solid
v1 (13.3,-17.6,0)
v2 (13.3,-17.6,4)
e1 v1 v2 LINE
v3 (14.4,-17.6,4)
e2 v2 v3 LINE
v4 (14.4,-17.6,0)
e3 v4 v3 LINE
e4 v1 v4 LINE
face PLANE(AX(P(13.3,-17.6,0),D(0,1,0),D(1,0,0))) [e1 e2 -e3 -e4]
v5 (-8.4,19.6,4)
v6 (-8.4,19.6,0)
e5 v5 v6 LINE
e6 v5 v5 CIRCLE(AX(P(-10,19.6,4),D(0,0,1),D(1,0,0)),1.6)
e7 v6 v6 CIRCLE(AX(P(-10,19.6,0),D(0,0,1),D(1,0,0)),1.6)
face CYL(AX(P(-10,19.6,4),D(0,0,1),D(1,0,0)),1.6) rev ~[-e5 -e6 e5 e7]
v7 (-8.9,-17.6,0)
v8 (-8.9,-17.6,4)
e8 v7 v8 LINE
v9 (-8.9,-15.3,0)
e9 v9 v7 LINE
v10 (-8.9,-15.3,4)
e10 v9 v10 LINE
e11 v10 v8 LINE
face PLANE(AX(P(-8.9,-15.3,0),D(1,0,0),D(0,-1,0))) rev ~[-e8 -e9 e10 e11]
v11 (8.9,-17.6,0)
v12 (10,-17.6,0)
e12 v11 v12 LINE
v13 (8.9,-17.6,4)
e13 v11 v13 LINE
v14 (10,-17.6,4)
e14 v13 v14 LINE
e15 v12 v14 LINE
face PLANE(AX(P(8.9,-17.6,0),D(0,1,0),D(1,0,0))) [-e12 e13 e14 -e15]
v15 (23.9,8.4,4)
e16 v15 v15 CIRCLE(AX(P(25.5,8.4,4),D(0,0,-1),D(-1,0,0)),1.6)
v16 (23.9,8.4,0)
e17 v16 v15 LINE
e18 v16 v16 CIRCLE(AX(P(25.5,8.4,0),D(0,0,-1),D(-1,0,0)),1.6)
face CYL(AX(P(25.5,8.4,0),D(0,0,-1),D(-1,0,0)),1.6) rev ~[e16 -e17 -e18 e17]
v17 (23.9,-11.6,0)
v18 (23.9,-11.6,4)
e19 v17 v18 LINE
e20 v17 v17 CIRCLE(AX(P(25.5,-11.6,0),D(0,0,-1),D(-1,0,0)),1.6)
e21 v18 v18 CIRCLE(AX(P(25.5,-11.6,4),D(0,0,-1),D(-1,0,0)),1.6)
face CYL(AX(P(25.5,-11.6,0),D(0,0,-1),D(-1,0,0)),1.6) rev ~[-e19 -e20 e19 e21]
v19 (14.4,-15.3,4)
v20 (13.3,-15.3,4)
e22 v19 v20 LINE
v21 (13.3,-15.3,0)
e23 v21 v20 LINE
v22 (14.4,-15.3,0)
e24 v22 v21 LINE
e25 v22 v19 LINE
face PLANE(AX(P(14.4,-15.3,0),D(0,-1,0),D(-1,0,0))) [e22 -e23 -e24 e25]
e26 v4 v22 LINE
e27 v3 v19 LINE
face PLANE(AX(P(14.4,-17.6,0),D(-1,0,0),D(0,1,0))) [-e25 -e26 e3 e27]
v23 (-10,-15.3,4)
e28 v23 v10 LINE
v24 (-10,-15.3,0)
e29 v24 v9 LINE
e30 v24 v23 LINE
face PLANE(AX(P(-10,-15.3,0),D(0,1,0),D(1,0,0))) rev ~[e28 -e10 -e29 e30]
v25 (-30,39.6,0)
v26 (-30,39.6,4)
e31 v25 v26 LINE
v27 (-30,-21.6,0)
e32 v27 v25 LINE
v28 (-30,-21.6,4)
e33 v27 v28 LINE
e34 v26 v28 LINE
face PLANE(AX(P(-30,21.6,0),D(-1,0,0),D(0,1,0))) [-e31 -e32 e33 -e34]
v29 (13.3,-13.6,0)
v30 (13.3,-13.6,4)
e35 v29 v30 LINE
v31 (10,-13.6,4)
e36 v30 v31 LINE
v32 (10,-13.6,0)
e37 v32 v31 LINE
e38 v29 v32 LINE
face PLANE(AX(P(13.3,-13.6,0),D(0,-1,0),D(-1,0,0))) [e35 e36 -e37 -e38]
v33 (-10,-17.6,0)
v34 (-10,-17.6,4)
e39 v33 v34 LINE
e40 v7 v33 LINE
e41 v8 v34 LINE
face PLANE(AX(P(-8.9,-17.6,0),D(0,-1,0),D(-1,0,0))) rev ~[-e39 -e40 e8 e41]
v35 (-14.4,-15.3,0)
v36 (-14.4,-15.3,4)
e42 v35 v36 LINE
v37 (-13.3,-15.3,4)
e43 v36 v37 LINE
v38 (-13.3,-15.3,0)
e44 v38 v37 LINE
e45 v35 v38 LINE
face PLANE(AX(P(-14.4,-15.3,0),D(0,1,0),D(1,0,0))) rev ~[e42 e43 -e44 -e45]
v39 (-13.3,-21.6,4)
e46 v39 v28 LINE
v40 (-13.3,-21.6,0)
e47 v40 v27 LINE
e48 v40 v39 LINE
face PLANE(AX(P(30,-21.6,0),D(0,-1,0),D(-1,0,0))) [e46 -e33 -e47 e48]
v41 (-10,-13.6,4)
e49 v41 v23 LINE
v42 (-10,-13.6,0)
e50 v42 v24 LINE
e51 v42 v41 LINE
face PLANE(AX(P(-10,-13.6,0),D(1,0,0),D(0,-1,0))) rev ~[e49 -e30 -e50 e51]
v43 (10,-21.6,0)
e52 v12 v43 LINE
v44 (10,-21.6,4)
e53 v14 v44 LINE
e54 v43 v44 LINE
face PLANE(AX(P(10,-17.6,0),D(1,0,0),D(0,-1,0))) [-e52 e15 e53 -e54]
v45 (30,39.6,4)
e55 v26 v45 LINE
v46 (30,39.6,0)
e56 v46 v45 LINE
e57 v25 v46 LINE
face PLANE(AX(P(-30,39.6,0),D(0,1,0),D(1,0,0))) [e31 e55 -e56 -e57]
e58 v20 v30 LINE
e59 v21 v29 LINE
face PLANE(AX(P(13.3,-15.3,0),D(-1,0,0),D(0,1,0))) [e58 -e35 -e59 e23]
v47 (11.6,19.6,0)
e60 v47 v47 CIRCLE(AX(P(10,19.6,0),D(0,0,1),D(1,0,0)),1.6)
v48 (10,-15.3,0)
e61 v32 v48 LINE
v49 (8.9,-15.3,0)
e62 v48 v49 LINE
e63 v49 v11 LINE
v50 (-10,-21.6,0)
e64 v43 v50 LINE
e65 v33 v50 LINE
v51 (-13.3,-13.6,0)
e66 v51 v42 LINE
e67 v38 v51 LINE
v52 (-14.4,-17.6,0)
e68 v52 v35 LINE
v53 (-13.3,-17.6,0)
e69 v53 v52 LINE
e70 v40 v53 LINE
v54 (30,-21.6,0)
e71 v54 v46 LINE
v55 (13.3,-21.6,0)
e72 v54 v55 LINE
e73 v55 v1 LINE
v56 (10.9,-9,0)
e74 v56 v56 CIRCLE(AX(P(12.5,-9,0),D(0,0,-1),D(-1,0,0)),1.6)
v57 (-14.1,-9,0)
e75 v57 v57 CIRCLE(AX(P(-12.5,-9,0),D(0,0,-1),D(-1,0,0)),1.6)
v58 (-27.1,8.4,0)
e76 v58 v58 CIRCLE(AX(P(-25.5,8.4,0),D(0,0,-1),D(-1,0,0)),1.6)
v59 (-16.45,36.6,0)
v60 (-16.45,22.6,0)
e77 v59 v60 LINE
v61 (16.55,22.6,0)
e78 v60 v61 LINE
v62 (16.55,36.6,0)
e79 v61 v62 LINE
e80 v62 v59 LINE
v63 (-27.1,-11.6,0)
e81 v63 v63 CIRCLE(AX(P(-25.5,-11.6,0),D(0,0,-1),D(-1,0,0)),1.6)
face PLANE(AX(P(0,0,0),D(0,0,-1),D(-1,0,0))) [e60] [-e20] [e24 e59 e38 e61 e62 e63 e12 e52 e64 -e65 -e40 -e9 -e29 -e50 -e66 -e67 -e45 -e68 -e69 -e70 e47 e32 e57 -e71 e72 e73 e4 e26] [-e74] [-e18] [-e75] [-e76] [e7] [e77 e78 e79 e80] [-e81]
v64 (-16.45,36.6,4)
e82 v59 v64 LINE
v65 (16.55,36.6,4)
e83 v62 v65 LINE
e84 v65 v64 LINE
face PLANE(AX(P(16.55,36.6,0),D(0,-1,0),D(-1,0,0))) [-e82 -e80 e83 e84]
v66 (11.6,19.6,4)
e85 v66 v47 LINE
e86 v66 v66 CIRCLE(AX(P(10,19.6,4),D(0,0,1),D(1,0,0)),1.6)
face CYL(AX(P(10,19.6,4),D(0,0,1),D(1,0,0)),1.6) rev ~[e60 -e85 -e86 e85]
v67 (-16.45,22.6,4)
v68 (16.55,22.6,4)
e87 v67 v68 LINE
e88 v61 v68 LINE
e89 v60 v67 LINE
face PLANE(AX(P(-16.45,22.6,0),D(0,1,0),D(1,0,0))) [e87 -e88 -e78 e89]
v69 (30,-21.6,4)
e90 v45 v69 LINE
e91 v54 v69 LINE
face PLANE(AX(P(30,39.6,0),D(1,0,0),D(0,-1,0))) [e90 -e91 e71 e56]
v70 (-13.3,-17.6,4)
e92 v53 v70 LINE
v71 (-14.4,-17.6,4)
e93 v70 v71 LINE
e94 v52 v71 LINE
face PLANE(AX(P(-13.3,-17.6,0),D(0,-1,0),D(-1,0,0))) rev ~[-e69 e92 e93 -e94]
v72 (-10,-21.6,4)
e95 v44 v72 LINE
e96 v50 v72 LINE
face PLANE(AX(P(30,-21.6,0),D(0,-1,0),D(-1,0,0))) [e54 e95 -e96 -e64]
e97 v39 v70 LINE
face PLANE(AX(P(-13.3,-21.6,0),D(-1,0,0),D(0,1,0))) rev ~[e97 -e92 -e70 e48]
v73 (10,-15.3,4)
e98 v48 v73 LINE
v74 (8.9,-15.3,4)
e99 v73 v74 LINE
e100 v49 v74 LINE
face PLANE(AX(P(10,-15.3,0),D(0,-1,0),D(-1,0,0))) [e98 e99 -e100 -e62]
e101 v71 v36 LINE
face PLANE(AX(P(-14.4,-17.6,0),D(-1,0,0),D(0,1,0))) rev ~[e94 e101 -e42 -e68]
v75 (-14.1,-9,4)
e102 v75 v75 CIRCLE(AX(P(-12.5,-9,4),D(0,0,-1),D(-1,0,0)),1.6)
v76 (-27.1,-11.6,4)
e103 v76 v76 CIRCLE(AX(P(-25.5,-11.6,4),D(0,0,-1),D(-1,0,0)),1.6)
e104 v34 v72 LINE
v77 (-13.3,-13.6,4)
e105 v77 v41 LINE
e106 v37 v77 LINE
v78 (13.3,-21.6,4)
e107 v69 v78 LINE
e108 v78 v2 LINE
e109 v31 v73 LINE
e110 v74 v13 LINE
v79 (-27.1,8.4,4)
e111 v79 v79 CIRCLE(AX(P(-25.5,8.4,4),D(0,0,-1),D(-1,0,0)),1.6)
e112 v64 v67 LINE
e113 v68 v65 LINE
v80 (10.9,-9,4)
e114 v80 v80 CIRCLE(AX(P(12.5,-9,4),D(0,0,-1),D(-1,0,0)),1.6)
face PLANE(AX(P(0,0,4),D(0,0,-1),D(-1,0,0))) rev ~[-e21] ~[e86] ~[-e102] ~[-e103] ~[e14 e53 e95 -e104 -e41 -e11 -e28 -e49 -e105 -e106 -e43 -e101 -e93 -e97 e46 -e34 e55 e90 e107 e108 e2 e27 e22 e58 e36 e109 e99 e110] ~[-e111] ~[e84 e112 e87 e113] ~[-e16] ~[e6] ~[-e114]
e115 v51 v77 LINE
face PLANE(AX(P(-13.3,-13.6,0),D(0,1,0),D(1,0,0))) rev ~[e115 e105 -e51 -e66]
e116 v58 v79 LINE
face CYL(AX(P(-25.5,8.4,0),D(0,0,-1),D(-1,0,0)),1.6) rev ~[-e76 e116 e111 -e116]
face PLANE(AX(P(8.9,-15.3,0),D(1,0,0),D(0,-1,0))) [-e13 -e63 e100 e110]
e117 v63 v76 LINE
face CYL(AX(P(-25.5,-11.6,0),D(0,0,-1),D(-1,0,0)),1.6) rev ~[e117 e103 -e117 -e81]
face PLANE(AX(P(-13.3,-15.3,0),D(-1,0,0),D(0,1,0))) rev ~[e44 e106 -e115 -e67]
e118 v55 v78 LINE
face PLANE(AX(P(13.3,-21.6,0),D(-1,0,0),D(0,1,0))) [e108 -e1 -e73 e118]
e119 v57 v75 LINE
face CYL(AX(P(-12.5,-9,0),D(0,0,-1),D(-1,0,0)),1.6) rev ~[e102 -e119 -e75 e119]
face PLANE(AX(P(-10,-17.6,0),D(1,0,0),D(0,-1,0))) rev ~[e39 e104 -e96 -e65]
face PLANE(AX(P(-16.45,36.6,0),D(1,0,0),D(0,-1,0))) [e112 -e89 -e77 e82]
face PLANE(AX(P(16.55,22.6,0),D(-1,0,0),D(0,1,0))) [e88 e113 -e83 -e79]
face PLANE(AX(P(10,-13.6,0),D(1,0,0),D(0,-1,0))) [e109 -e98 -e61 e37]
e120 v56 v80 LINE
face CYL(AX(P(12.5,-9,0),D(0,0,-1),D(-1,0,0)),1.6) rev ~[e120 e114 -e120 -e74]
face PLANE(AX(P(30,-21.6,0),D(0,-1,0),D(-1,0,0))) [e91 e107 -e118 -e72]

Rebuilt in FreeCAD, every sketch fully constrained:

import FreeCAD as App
import Part
import Sketcher
from FreeCAD import Vector
Q = App.Units.Quantity


def add_polygon(sketch, points):
    """Adds a closed chain of lines whose ends are joined by coincident constraints."""
    first, n = sketch.GeometryCount, len(points)
    for a, b in zip(points, points[1:] + points[:1]):
        sketch.addGeometry(Part.LineSegment(App.Vector(*a, 0), App.Vector(*b, 0)), False)
    for i in range(n):
        sketch.addConstraint(Sketcher.Constraint("Coincident", first + i, 2, first + (i + 1) % n, 1))

doc = App.newDocument("Part")
body = doc.addObject("PartDesign::Body", "Body")

# Sketch on XY plane
sketch1 = body.newObject("Sketcher::SketchObject", "Sketch")
sketch1.AttachmentSupport = (doc.getObject("XY_Plane"), [""])
sketch1.MapMode = "FlatFace"
add_polygon(sketch1, [(30, 22), (-30, 22), (-30, -22), (30, -22)])  # lines 0-3
sketch1.addConstraint(Sketcher.Constraint("Horizontal", 0))
sketch1.addConstraint(Sketcher.Constraint("Vertical", 1))
sketch1.addConstraint(Sketcher.Constraint("Horizontal", 2))
sketch1.addConstraint(Sketcher.Constraint("Vertical", 3))
sketch1.addConstraint(Sketcher.Constraint("Symmetric", 0, 2, 2, 2, -1, 1))
sketch1.addConstraint(Sketcher.Constraint("DistanceX", 0, 2, 0, 1, Q("60 mm")))
sketch1.addConstraint(Sketcher.Constraint("DistanceY", 1, 2, 1, 1, Q("43.2 mm")))
pad1 = body.newObject("PartDesign::Pad", "Pad")
pad1.Profile = sketch1
pad1.Length = 4

# Sketch on XY plane
sketch2 = body.newObject("Sketcher::SketchObject", "Sketch001")
sketch2.AttachmentSupport = (doc.getObject("XY_Plane"), [""])
sketch2.MapMode = "FlatFace"
sketch2.addGeometry(Part.Circle(Vector(12.5, -9, 0), Vector(0, 0, 1), 1.6), False)
sketch2.addGeometry(Part.Circle(Vector(-12.5, -9, 0), Vector(0, 0, 1), 1.6), False)
sketch2.addConstraint(Sketcher.Constraint("Equal", 0, 1))
sketch2.addConstraint(Sketcher.Constraint("Symmetric", 0, 3, 1, 3, -2))
sketch2.addConstraint(Sketcher.Constraint("Diameter", 0, Q("3.2 mm")))
sketch2.addConstraint(Sketcher.Constraint("DistanceY", 0, 3, -1, 1, Q("9 mm")))
sketch2.addConstraint(Sketcher.Constraint("DistanceX", 1, 3, 0, 3, Q("25 mm")))
pocket1 = body.newObject("PartDesign::Pocket", "Pocket")
pocket1.Profile = sketch2
pocket1.Length = 4
pocket1.Reversed = True

# Sketch on XY plane
sketch3 = body.newObject("Sketcher::SketchObject", "Sketch002")
sketch3.AttachmentSupport = (doc.getObject("XY_Plane"), [""])
sketch3.MapMode = "FlatFace"
sketch3.addGeometry(Part.Circle(Vector(25.5, 8.4, 0), Vector(0, 0, 1), 1.6), False)
sketch3.addGeometry(Part.Circle(Vector(-25.5, 8.4, 0), Vector(0, 0, 1), 1.6), False)
sketch3.addGeometry(Part.Circle(Vector(25.5, -11.6, 0), Vector(0, 0, 1), 1.6), False)
sketch3.addGeometry(Part.Circle(Vector(-25.5, -11.6, 0), Vector(0, 0, 1), 1.6), False)
sketch3.addConstraint(Sketcher.Constraint("Equal", 0, 1))
sketch3.addConstraint(Sketcher.Constraint("Equal", 1, 2))
sketch3.addConstraint(Sketcher.Constraint("Equal", 2, 3))
sketch3.addConstraint(Sketcher.Constraint("Symmetric", 0, 3, 1, 3, -2))
sketch3.addConstraint(Sketcher.Constraint("Symmetric", 2, 3, 3, 3, -2))
sketch3.addConstraint(Sketcher.Constraint("Vertical", 0, 3, 2, 3))
sketch3.addConstraint(Sketcher.Constraint("Diameter", 0, Q("3.2 mm")))
sketch3.addConstraint(Sketcher.Constraint("DistanceX", 1, 3, 0, 3, Q("51 mm")))
sketch3.addConstraint(Sketcher.Constraint("DistanceY", 2, 3, 0, 3, Q("20 mm")))
sketch3.addConstraint(Sketcher.Constraint("DistanceY", -1, 1, 0, 3, Q("8.4 mm")))
pocket2 = body.newObject("PartDesign::Pocket", "Pocket001")
pocket2.Profile = sketch3
pocket2.Length = 10
pocket2.Reversed = True

# Sketch on XY plane
sketch4 = body.newObject("Sketcher::SketchObject", "Sketch003")
sketch4.AttachmentSupport = (doc.getObject("XY_Plane"), [""])
sketch4.MapMode = "FlatFace"
add_polygon(sketch4, [(30, 40), (30, 22), (-30, 22), (-30, 40)])  # lines 0-3
sketch4.addConstraint(Sketcher.Constraint("Vertical", 0))
sketch4.addConstraint(Sketcher.Constraint("Horizontal", 1))
sketch4.addConstraint(Sketcher.Constraint("Vertical", 2))
sketch4.addConstraint(Sketcher.Constraint("Horizontal", 3))
sketch4.addConstraint(Sketcher.Constraint("DistanceX", 1, 2, 1, 1, Q("60 mm")))
sketch4.addConstraint(Sketcher.Constraint("DistanceY", 0, 2, 0, 1, Q("18 mm")))
sketch4.addConstraint(Sketcher.Constraint("DistanceX", -1, 1, 0, 2, Q("30 mm")))
sketch4.addConstraint(Sketcher.Constraint("DistanceY", -1, 1, 0, 2, Q("21.6 mm")))
pad2 = body.newObject("PartDesign::Pad", "Pad001")
pad2.Profile = sketch4
pad2.Length = 4

# Sketch on XY plane
sketch5 = body.newObject("Sketcher::SketchObject", "Sketch004")
sketch5.AttachmentSupport = (doc.getObject("XY_Plane"), [""])
sketch5.MapMode = "FlatFace"
add_polygon(sketch5, [(-16, 37), (17, 37), (17, 23), (-16, 23)])  # lines 0-3
sketch5.addConstraint(Sketcher.Constraint("Horizontal", 0))
sketch5.addConstraint(Sketcher.Constraint("Vertical", 1))
sketch5.addConstraint(Sketcher.Constraint("Horizontal", 2))
sketch5.addConstraint(Sketcher.Constraint("Vertical", 3))
sketch5.addConstraint(Sketcher.Constraint("DistanceX", 0, 1, 0, 2, Q("33 mm")))
sketch5.addConstraint(Sketcher.Constraint("DistanceY", 1, 2, 1, 1, Q("14 mm")))
sketch5.addConstraint(Sketcher.Constraint("DistanceY", -1, 1, 0, 2, Q("36.6 mm")))
sketch5.addConstraint(Sketcher.Constraint("DistanceX", -1, 1, 0, 2, Q("16.55 mm")))
pocket3 = body.newObject("PartDesign::Pocket", "Pocket002")
pocket3.Profile = sketch5
pocket3.Length = 4
pocket3.Reversed = True

# Sketch on XY plane
sketch6 = body.newObject("Sketcher::SketchObject", "Sketch005")
sketch6.AttachmentSupport = (doc.getObject("XY_Plane"), [""])
sketch6.MapMode = "FlatFace"
sketch6.AttachmentOffset = App.Placement(Vector(0, 0, 4), App.Rotation())
sketch6.addGeometry(Part.Circle(Vector(-10, 19.6, 0), Vector(0, 0, 1), 1.6), False)
sketch6.addGeometry(Part.Circle(Vector(10, 19.6, 0), Vector(0, 0, 1), 1.6), False)
sketch6.addConstraint(Sketcher.Constraint("Equal", 0, 1))
sketch6.addConstraint(Sketcher.Constraint("Symmetric", 0, 3, 1, 3, -2))
sketch6.addConstraint(Sketcher.Constraint("Diameter", 0, Q("3.2 mm")))
sketch6.addConstraint(Sketcher.Constraint("DistanceX", 0, 3, -1, 1, Q("10 mm")))
sketch6.addConstraint(Sketcher.Constraint("DistanceY", -1, 1, 0, 3, Q("19.6 mm")))
pocket4 = body.newObject("PartDesign::Pocket", "Pocket003")
pocket4.Profile = sketch6
pocket4.Length = 10

# Sketch on XY plane
sketch7 = body.newObject("Sketcher::SketchObject", "Sketch006")
sketch7.AttachmentSupport = (doc.getObject("XY_Plane"), [""])
sketch7.MapMode = "FlatFace"
add_polygon(sketch7, [(13.3, -21.6), (10, -21.6), (10, -17.6), (8.9, -17.6), (8.9, -15.3), (10, -15.3), (10, -13.6), (13.3, -13.6), (13.3, -15.3), (14.4, -15.3), (14.4, -17.6), (13.3, -17.6)])  # lines 0-11
add_polygon(sketch7, [(-10, -17.6), (-10, -21.6), (-13.3, -21.6), (-13.3, -17.6), (-14.4, -17.6), (-14.4, -15.3), (-13.3, -15.3), (-13.3, -13.6), (-10, -13.6), (-10, -15.3), (-8.9, -15.3), (-8.9, -17.6)])  # lines 12-23
sketch7.addConstraint(Sketcher.Constraint("Horizontal", 0))
sketch7.addConstraint(Sketcher.Constraint("Vertical", 1))
sketch7.addConstraint(Sketcher.Constraint("Horizontal", 2))
sketch7.addConstraint(Sketcher.Constraint("Vertical", 3))
sketch7.addConstraint(Sketcher.Constraint("Horizontal", 4))
sketch7.addConstraint(Sketcher.Constraint("Vertical", 5))
sketch7.addConstraint(Sketcher.Constraint("Horizontal", 6))
sketch7.addConstraint(Sketcher.Constraint("Vertical", 7))
sketch7.addConstraint(Sketcher.Constraint("Horizontal", 8))
sketch7.addConstraint(Sketcher.Constraint("Vertical", 9))
sketch7.addConstraint(Sketcher.Constraint("Horizontal", 10))
sketch7.addConstraint(Sketcher.Constraint("Vertical", 11))
sketch7.addConstraint(Sketcher.Constraint("Vertical", 12))
sketch7.addConstraint(Sketcher.Constraint("Horizontal", 13))
sketch7.addConstraint(Sketcher.Constraint("Vertical", 14))
sketch7.addConstraint(Sketcher.Constraint("Horizontal", 15))
sketch7.addConstraint(Sketcher.Constraint("Vertical", 16))
sketch7.addConstraint(Sketcher.Constraint("Horizontal", 17))
sketch7.addConstraint(Sketcher.Constraint("Vertical", 18))
sketch7.addConstraint(Sketcher.Constraint("Horizontal", 19))
sketch7.addConstraint(Sketcher.Constraint("Vertical", 20))
sketch7.addConstraint(Sketcher.Constraint("Horizontal", 21))
sketch7.addConstraint(Sketcher.Constraint("Vertical", 22))
sketch7.addConstraint(Sketcher.Constraint("Horizontal", 23))
sketch7.addConstraint(Sketcher.Constraint("Symmetric", 0, 2, 12, 2, -2))
sketch7.addConstraint(Sketcher.Constraint("Symmetric", 10, 2, 14, 2, -2))
sketch7.addConstraint(Sketcher.Constraint("Symmetric", 8, 2, 16, 2, -2))
sketch7.addConstraint(Sketcher.Constraint("Symmetric", 6, 2, 18, 2, -2))
sketch7.addConstraint(Sketcher.Constraint("Symmetric", 4, 2, 20, 2, -2))
sketch7.addConstraint(Sketcher.Constraint("Symmetric", 2, 2, 22, 2, -2))
sketch7.addConstraint(Sketcher.Constraint("Horizontal", 4, 2, 7, 2))
sketch7.addConstraint(Sketcher.Constraint("Horizontal", 2, 2, 9, 2))
sketch7.addConstraint(Sketcher.Constraint("Vertical", 1, 2, 4, 2))
sketch7.addConstraint(Sketcher.Constraint("Vertical", 7, 2, 10, 2))
sketch7.addConstraint(Sketcher.Constraint("Equal", 4, 8))
sketch7.addConstraint(Sketcher.Constraint("DistanceY", 1, 1, 1, 2, Q("4 mm")))
sketch7.addConstraint(Sketcher.Constraint("DistanceX", 0, 2, 0, 1, Q("3.3 mm")))
sketch7.addConstraint(Sketcher.Constraint("DistanceY", 3, 1, 3, 2, Q("2.3 mm")))
sketch7.addConstraint(Sketcher.Constraint("DistanceX", -1, 1, 0, 2, Q("10 mm")))
sketch7.addConstraint(Sketcher.Constraint("DistanceY", 1, 2, 5, 2, Q("4 mm")))
sketch7.addConstraint(Sketcher.Constraint("DistanceX", 2, 2, 2, 1, Q("1.1 mm")))
sketch7.addConstraint(Sketcher.Constraint("DistanceY", 0, 2, -1, 1, Q("21.6 mm")))
pocket5 = body.newObject("PartDesign::Pocket", "Pocket004")
pocket5.Profile = sketch7
pocket5.Length = 4
pocket5.Reversed = True

doc.recompute()
